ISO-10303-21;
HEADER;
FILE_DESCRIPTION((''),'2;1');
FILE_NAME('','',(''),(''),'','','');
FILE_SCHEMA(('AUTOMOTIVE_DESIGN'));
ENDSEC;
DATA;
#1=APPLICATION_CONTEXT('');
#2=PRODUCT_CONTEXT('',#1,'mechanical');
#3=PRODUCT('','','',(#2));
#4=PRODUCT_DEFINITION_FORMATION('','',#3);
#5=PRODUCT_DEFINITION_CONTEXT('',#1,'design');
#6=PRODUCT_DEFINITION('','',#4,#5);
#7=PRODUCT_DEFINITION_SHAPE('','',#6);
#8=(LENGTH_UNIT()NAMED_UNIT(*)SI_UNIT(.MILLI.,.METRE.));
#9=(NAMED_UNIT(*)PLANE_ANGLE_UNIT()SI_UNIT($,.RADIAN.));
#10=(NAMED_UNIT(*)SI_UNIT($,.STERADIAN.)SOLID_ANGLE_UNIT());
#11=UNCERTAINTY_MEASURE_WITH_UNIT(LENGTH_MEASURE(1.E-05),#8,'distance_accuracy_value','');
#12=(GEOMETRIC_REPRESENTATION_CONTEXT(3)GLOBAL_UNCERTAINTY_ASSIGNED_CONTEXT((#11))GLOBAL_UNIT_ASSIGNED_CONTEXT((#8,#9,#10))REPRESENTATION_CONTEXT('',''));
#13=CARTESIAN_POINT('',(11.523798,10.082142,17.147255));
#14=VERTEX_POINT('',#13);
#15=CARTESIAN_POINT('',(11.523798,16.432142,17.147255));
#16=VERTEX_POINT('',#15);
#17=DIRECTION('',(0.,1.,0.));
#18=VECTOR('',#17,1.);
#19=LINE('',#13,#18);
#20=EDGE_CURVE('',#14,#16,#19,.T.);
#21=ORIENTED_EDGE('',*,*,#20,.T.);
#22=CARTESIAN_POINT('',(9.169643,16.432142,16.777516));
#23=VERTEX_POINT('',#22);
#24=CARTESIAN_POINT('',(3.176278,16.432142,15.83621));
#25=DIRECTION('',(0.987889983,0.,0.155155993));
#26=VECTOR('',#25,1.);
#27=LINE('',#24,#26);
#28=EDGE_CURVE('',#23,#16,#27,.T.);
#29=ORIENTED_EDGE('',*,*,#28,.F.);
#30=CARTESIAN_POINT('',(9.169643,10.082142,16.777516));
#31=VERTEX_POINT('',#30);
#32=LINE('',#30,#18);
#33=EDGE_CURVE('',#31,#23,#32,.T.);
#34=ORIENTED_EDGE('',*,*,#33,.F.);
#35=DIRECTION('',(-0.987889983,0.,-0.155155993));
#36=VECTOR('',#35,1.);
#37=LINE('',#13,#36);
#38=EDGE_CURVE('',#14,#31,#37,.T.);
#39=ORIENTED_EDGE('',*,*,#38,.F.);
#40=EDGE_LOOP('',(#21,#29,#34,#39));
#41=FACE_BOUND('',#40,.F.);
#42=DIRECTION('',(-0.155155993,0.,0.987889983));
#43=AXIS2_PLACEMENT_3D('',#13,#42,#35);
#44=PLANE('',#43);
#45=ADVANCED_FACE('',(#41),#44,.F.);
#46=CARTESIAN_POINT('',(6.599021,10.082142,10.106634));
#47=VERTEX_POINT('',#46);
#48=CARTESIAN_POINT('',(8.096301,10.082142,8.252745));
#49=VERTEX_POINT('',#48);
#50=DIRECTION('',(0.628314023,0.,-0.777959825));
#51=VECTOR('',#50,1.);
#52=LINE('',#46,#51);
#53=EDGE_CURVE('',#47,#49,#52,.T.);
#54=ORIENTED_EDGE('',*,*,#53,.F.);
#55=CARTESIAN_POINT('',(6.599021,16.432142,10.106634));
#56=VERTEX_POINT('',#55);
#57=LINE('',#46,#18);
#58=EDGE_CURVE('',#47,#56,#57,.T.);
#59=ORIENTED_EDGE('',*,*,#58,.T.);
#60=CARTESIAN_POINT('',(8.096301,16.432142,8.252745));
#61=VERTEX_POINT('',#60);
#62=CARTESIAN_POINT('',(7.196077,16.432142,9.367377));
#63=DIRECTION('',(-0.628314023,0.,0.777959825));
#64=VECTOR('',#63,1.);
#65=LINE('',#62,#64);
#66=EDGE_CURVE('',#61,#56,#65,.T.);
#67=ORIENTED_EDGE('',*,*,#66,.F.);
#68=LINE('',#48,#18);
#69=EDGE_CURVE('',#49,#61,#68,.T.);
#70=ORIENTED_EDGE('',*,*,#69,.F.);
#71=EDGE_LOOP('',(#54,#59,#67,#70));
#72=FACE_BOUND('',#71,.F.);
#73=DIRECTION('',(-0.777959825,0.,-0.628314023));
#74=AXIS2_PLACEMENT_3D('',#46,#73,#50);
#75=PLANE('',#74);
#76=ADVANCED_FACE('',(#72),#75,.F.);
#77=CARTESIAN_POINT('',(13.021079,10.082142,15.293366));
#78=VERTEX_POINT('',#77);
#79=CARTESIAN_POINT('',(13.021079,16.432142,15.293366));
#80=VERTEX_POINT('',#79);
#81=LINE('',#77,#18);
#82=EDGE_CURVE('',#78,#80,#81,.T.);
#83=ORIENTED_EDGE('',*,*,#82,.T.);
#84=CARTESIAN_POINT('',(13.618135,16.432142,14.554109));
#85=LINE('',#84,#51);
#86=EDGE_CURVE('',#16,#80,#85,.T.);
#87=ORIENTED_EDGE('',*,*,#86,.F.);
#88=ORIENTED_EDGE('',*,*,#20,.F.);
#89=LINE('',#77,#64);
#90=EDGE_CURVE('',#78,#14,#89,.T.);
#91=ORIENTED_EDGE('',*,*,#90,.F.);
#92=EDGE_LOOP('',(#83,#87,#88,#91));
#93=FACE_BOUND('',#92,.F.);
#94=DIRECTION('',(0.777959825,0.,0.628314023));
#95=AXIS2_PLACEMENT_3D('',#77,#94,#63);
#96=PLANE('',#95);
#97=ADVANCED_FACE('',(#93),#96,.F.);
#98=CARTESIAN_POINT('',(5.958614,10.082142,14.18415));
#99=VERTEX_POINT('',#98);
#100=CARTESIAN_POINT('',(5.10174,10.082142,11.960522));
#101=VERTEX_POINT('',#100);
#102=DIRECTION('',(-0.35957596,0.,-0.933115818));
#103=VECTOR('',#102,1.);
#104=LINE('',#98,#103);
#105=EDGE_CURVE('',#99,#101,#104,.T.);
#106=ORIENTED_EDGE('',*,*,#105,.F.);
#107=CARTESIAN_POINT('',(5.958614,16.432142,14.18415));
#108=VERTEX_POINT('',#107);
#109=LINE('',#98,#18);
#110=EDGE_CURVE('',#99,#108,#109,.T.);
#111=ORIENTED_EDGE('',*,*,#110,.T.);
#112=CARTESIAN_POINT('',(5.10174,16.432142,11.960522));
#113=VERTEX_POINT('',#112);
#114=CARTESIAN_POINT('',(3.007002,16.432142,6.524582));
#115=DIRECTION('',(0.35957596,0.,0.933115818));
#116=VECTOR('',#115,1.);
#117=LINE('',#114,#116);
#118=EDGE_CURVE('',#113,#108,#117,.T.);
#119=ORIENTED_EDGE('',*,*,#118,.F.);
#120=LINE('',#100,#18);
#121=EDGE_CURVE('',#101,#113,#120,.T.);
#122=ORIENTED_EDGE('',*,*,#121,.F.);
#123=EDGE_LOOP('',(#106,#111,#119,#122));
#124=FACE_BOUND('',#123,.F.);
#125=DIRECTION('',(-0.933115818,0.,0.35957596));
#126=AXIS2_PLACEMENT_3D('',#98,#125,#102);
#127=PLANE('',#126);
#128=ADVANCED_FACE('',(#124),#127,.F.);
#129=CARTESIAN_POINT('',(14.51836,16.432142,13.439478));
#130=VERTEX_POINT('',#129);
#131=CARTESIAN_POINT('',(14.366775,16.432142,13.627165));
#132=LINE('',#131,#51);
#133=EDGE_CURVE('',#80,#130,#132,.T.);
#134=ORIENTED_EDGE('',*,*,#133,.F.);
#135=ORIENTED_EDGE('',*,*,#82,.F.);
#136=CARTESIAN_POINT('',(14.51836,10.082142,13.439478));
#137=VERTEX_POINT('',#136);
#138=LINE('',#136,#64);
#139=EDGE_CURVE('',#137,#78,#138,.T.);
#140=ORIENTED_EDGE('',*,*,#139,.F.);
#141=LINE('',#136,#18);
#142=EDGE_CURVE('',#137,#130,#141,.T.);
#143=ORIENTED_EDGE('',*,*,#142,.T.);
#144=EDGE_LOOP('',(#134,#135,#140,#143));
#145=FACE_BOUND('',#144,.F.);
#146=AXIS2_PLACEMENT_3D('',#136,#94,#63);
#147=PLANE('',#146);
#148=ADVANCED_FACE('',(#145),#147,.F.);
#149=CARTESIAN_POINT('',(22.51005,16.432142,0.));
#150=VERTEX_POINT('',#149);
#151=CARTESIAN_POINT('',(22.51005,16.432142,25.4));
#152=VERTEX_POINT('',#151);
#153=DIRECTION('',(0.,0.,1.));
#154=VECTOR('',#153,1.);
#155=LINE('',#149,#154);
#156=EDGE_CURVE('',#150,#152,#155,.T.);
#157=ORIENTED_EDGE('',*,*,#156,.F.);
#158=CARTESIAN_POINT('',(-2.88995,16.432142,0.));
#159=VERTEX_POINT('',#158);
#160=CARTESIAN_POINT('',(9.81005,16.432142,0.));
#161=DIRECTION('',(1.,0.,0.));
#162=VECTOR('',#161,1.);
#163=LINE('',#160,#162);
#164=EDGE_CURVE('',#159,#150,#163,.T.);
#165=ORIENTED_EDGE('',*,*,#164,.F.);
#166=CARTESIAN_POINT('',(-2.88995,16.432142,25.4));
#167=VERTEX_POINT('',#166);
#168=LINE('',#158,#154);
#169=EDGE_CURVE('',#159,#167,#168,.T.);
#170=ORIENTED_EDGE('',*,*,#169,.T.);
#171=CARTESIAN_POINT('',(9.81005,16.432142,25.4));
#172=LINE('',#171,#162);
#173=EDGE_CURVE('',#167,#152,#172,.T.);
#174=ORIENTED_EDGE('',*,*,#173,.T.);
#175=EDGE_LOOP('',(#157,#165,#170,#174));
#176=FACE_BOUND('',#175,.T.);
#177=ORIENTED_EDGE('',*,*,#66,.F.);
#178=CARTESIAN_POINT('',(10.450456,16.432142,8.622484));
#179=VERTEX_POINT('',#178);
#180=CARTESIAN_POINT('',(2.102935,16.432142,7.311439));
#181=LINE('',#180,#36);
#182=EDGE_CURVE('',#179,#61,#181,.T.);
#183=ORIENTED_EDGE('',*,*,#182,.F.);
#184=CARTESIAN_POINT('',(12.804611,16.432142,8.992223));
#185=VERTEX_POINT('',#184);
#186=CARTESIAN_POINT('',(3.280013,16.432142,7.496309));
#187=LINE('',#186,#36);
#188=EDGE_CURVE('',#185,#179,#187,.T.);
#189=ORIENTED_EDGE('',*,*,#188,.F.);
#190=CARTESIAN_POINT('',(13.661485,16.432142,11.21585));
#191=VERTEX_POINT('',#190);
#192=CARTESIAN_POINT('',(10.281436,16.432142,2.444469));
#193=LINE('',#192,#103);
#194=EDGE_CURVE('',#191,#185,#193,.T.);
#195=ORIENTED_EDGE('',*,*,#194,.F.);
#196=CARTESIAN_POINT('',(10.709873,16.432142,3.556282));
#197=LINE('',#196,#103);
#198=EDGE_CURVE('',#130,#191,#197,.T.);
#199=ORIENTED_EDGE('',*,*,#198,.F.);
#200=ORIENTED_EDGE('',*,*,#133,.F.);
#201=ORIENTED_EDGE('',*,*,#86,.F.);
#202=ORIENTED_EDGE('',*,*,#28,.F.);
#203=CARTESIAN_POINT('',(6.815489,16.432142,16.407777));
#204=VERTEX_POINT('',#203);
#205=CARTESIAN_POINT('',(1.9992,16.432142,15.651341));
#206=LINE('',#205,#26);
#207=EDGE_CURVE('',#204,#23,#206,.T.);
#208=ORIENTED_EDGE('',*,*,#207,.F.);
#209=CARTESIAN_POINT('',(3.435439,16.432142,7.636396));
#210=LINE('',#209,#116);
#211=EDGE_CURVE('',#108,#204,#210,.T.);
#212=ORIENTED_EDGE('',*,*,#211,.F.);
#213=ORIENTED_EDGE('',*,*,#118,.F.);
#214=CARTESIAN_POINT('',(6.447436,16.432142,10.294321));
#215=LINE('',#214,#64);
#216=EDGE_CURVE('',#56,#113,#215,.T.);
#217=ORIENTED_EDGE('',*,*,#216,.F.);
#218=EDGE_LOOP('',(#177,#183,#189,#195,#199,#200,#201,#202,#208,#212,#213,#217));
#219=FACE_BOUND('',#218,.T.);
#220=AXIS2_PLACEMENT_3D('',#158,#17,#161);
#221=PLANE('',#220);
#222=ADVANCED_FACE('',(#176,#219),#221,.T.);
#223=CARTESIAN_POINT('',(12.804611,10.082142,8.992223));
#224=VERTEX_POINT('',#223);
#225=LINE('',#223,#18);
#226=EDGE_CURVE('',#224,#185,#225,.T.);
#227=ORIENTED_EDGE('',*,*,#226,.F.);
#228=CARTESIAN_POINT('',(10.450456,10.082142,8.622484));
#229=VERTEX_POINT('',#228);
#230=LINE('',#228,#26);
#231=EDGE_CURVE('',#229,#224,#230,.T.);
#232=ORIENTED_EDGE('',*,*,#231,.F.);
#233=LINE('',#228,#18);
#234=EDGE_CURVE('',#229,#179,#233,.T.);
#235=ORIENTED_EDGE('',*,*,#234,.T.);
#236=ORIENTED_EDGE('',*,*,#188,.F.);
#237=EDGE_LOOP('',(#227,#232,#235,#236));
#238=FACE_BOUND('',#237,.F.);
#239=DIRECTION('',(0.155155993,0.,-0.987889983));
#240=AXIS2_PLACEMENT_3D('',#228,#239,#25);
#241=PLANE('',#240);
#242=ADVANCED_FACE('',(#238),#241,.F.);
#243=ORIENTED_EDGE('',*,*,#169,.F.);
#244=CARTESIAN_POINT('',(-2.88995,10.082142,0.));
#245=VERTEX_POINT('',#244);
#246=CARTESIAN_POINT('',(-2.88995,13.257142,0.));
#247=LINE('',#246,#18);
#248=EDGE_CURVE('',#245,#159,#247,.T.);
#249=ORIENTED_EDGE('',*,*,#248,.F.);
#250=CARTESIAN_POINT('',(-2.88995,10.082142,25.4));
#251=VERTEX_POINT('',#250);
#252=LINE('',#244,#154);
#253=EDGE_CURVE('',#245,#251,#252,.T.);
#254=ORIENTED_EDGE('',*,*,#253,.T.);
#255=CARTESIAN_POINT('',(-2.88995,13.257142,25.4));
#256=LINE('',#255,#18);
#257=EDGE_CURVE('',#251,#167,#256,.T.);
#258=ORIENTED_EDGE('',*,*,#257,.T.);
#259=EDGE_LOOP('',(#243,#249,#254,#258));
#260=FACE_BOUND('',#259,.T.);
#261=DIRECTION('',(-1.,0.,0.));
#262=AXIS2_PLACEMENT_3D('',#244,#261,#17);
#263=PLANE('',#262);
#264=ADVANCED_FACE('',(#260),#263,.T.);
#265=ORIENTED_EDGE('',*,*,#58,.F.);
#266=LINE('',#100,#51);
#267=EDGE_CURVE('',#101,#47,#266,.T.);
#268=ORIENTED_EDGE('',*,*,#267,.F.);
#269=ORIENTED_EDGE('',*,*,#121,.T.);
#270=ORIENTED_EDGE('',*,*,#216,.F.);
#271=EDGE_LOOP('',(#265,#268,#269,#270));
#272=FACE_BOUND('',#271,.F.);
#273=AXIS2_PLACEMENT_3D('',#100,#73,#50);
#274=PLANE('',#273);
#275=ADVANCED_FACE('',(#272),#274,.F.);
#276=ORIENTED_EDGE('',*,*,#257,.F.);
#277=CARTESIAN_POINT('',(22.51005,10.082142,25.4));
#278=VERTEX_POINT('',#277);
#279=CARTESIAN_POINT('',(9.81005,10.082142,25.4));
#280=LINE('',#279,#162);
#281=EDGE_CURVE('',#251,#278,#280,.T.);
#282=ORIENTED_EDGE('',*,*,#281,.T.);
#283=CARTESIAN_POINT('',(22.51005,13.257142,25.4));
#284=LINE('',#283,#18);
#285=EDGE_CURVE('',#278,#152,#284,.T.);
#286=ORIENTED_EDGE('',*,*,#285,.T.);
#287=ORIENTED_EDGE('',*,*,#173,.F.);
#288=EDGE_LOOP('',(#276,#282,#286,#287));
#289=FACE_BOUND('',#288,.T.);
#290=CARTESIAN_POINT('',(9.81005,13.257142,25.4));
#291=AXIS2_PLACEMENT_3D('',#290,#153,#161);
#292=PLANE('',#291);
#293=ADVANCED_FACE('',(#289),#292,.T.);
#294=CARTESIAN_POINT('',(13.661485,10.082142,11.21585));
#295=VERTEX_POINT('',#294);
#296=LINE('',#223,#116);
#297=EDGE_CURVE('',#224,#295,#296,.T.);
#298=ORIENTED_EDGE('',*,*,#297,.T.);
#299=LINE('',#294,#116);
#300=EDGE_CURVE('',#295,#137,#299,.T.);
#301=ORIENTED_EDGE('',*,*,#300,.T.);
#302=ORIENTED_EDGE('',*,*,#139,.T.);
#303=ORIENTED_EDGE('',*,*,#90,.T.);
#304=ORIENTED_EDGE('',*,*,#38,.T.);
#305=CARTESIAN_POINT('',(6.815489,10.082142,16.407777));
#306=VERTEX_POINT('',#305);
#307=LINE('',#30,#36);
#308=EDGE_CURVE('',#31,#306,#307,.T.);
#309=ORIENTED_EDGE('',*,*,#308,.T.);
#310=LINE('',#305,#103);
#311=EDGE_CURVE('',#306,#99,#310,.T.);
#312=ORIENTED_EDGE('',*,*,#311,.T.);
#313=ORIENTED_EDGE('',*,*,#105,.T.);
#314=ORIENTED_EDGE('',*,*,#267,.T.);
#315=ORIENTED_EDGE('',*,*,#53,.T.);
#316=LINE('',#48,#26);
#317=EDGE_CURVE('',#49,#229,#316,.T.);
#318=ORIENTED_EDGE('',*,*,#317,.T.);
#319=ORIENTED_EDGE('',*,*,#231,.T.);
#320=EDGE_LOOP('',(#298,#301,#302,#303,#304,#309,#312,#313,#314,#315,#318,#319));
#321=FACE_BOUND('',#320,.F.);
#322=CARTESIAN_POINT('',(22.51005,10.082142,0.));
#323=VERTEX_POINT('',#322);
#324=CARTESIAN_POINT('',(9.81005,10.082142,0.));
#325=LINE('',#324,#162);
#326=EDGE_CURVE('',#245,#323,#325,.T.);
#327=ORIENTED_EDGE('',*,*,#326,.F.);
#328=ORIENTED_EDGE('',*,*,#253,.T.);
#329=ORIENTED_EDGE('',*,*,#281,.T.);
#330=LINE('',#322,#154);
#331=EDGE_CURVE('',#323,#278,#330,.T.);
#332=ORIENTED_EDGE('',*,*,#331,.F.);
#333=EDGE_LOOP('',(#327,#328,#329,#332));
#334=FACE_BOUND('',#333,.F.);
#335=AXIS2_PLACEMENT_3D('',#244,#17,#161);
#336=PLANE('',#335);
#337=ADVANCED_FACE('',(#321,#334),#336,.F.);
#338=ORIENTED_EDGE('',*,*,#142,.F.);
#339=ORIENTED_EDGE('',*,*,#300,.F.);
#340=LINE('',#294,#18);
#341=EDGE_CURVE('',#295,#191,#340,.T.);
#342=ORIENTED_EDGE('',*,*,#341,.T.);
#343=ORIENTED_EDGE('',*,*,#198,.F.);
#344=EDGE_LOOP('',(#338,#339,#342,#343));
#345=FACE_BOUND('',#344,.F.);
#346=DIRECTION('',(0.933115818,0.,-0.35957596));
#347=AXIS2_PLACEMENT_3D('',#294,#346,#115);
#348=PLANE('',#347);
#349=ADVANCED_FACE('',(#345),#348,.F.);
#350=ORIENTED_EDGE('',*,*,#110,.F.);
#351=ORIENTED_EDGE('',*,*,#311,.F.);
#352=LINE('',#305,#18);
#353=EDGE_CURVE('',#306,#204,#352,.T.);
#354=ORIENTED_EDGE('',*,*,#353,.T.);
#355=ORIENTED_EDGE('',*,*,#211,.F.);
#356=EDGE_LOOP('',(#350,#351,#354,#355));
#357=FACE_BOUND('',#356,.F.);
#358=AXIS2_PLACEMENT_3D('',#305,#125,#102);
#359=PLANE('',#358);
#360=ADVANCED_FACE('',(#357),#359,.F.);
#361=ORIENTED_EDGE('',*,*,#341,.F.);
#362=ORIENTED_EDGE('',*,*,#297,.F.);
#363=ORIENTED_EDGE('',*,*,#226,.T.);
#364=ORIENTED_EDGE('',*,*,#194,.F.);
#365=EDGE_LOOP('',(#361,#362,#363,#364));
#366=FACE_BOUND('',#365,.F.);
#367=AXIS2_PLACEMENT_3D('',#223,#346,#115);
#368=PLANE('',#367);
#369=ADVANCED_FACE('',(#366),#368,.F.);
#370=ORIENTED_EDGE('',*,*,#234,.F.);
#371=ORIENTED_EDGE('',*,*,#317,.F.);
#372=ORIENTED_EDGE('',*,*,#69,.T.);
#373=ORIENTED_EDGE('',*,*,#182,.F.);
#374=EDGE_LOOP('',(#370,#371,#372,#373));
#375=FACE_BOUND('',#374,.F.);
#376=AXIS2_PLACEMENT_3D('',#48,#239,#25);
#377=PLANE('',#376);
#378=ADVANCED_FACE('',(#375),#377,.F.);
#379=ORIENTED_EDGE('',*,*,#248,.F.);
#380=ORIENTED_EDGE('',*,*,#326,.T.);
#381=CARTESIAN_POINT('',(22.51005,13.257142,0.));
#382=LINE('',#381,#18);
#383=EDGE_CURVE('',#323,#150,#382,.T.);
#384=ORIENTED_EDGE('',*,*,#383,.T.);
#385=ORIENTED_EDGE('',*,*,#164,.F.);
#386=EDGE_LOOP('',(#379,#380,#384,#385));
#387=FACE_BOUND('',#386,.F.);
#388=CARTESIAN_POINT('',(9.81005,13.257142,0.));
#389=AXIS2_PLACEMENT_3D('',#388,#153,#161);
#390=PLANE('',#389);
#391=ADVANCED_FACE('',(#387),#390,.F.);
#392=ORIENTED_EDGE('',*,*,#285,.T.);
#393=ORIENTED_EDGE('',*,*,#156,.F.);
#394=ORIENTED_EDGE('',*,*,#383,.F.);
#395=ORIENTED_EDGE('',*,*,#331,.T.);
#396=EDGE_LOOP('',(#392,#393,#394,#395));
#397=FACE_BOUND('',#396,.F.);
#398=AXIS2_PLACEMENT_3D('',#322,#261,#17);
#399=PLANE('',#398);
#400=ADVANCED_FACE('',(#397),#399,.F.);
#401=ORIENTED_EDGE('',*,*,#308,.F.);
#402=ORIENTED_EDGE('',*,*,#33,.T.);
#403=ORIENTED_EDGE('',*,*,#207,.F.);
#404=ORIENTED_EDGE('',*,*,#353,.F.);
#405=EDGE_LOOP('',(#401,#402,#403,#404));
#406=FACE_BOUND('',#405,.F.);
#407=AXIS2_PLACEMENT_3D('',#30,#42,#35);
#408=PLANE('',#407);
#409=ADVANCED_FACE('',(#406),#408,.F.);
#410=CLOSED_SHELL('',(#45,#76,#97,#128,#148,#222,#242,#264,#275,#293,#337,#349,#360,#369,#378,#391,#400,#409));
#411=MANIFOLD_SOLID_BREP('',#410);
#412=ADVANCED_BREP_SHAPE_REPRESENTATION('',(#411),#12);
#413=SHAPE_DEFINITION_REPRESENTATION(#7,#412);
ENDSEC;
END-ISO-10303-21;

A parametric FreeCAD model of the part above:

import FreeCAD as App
import Part
import Sketcher

V = App.Vector
Q = App.Units.Quantity


def add_polygon(sketch, points):
    """Adds a closed chain of lines whose ends are joined by coincident constraints."""
    first, n = sketch.GeometryCount, len(points)
    for a, b in zip(points, points[1:] + points[:1]):
        sketch.addGeometry(Part.LineSegment(App.Vector(*a, 0), App.Vector(*b, 0)), False)
    for i in range(n):
        sketch.addConstraint(Sketcher.Constraint("Coincident", first + i, 2, first + (i + 1) % n, 1))

doc = App.newDocument("Part")
body = doc.addObject("PartDesign::Body", "Body")

sketch1 = body.newObject("Sketcher::SketchObject", "Sketch")
sketch1.AttachmentSupport = (doc.getObject("XY_Plane"), [""])
sketch1.MapMode = "FlatFace"
add_polygon(sketch1, [(-2.88995, 16.432142), (-2.88995, 10.082142), (22.51005, 10.082142), (22.51005, 16.432142)])
sketch1.addConstraint(Sketcher.Constraint("Vertical", 0))
sketch1.addConstraint(Sketcher.Constraint("Horizontal", 1))
sketch1.addConstraint(Sketcher.Constraint("Vertical", 2))
sketch1.addConstraint(Sketcher.Constraint("Horizontal", 3))
sketch1.addConstraint(Sketcher.Constraint("DistanceX", 1, 1, 1, 2, Q("1 in")))
sketch1.addConstraint(Sketcher.Constraint("DistanceY", 0, 2, 0, 1, Q("0.25 in")))
sketch1.addConstraint(Sketcher.Constraint("DistanceX", 0, 2, -1, 1, Q("2.88995 mm")))
sketch1.addConstraint(Sketcher.Constraint("DistanceY", -1, 1, 0, 2, Q("10.082142 mm")))
pad1 = body.newObject("PartDesign::Pad", "Pad")
pad1.Profile = sketch1
pad1.Length = Q("1 in")

sketch2 = body.newObject("Sketcher::SketchObject", "Sketch001")
sketch2.AttachmentSupport = (doc.getObject("XZ_Plane"), [""])
sketch2.MapMode = "FlatFace"
sketch2.AttachmentOffset = App.Placement(V(0, 0, -10.082142), App.Rotation())
add_polygon(sketch2, [(6.599021, 10.106634), (8.096301, 8.252745), (10.450456, 8.622484), (12.804611, 8.992223), (13.661485, 11.21585), (14.51836, 13.439478), (13.021079, 15.293366), (11.523798, 17.147255), (9.169643, 16.777516), (6.815489, 16.407777), (5.958614, 14.18415), (5.10174, 11.960522)])
sketch2.addConstraint(Sketcher.Constraint("Parallel", 1, 2))
sketch2.addConstraint(Sketcher.Constraint("Parallel", 3, 4))
sketch2.addConstraint(Sketcher.Constraint("Parallel", 0, 5))
sketch2.addConstraint(Sketcher.Constraint("Parallel", 5, 6))
sketch2.addConstraint(Sketcher.Constraint("Parallel", 2, 7))
sketch2.addConstraint(Sketcher.Constraint("Parallel", 7, 8))
sketch2.addConstraint(Sketcher.Constraint("Parallel", 4, 9))
sketch2.addConstraint(Sketcher.Constraint("Parallel", 9, 10))
sketch2.addConstraint(Sketcher.Constraint("Parallel", 6, 11))
sketch2.addConstraint(Sketcher.Constraint("Equal", 0, 1))
sketch2.addConstraint(Sketcher.Constraint("Equal", 1, 2))
sketch2.addConstraint(Sketcher.Constraint("Equal", 2, 3))
sketch2.addConstraint(Sketcher.Constraint("Equal", 3, 4))
sketch2.addConstraint(Sketcher.Constraint("Equal", 4, 5))
sketch2.addConstraint(Sketcher.Constraint("Equal", 5, 6))
sketch2.addConstraint(Sketcher.Constraint("Equal", 6, 7))
sketch2.addConstraint(Sketcher.Constraint("Equal", 7, 8))
sketch2.addConstraint(Sketcher.Constraint("Equal", 8, 9))
sketch2.addConstraint(Sketcher.Constraint("DistanceX", -1, 1, 0, 2, Q("8.096301 mm")))
sketch2.addConstraint(Sketcher.Constraint("DistanceX", -1, 1, 6, 2, Q("11.523798 mm")))
sketch2.addConstraint(Sketcher.Constraint("DistanceY", 4, 2, 8, 2, Q("2.9683 mm")))
sketch2.addConstraint(Sketcher.Constraint("DistanceX", -1, 1, 2, 2, Q("12.804611 mm")))
sketch2.addConstraint(Sketcher.Constraint("DistanceY", -1, 1, 3, 2, Q("11.21585 mm")))
sketch2.addConstraint(Sketcher.Constraint("DistanceX", -1, 1, 4, 2, Q("14.51836 mm")))
pocket1 = body.newObject("PartDesign::Pocket", "Pocket")
pocket1.Profile = sketch2
pocket1.Length = Q("1 in")

doc.recompute()
